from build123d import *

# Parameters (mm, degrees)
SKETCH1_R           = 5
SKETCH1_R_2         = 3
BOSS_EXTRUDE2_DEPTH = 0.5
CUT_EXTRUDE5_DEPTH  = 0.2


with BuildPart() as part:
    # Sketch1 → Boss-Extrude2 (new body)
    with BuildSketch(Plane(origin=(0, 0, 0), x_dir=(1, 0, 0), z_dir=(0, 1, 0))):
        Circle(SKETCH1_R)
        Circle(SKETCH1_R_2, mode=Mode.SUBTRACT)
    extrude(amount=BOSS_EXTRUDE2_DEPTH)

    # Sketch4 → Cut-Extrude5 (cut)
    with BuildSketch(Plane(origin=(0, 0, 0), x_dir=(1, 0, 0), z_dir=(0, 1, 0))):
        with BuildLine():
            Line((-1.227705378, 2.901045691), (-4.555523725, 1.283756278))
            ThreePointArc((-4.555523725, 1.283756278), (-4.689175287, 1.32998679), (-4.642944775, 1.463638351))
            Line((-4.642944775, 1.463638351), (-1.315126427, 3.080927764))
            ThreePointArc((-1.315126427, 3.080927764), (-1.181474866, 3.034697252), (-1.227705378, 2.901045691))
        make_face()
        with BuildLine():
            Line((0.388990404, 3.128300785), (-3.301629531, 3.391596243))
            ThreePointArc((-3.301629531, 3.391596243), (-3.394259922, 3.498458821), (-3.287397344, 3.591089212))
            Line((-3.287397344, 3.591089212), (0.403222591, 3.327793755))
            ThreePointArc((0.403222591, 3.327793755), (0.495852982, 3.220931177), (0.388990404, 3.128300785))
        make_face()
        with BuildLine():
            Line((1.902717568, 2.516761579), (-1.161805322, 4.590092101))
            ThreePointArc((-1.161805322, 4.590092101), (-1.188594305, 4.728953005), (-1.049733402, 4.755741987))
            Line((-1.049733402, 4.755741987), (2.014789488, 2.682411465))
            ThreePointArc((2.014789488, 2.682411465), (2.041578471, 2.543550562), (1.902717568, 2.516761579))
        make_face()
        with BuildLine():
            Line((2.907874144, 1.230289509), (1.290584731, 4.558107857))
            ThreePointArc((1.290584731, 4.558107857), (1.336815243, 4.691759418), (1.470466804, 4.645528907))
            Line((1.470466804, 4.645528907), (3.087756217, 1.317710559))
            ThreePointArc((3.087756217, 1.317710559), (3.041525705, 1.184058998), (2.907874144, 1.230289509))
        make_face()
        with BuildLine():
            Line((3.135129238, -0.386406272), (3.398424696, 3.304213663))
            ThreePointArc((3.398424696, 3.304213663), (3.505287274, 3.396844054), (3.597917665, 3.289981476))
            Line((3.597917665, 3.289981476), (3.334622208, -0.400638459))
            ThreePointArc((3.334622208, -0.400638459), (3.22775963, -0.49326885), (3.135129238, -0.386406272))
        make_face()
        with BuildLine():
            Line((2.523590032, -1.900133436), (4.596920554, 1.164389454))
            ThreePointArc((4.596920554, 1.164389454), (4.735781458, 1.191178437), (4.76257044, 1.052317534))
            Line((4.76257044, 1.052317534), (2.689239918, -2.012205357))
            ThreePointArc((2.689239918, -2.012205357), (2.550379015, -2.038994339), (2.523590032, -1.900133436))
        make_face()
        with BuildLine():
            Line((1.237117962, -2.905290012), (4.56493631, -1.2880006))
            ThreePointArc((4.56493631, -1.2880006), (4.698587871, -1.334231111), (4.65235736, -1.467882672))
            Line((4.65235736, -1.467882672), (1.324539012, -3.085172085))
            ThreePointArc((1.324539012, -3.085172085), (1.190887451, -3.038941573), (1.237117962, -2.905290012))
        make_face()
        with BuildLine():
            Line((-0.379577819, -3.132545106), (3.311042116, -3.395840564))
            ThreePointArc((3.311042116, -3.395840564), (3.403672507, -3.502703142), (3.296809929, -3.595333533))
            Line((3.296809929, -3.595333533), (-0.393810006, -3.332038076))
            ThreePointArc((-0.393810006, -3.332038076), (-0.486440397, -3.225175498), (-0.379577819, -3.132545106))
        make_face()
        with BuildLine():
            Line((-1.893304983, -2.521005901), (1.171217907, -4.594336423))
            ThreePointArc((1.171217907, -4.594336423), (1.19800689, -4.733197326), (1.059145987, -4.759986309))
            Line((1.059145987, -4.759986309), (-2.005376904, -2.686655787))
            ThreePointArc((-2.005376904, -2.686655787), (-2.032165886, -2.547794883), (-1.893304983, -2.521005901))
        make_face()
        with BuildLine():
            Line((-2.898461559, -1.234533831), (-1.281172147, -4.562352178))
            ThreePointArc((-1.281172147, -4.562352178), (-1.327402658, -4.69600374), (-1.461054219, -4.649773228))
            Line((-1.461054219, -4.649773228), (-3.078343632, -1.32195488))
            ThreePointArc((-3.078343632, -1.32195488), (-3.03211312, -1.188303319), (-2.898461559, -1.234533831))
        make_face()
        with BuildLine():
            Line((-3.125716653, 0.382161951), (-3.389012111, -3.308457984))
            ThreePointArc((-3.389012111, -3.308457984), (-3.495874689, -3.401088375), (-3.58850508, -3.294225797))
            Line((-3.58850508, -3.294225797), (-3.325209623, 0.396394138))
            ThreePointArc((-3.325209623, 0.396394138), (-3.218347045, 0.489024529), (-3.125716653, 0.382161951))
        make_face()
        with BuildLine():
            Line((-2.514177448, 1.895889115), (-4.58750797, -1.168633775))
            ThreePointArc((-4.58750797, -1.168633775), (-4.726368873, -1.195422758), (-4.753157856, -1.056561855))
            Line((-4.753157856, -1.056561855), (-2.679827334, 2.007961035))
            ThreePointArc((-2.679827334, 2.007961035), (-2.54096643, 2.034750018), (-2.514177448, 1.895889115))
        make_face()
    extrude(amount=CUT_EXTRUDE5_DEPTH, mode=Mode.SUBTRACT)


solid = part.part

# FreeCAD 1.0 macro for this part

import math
import FreeCAD as App
import Part
import Sketcher

doc = App.newDocument("Part")
body = doc.addObject("PartDesign::Body", "Body")

# Sketch on XZ plane
sketch1 = body.newObject("Sketcher::SketchObject", "Sketch")
sketch1.AttachmentSupport = (doc.getObject("XZ_Plane"), [""])
sketch1.MapMode = "FlatFace"
sketch1.addGeometry([
    Part.Circle(App.Vector(0, 0, 0), App.Vector(0, 0, 1), 5),
    Part.Circle(App.Vector(0, 0, 0), App.Vector(0, 0, 1), 3),
], False)
sketch1.addConstraint([
    Sketcher.Constraint("Coincident", 0, 3, -1, 1),
    Sketcher.Constraint("Coincident", 1, 3, -1, 1),
    Sketcher.Constraint("Diameter", 0, 10.0),
    Sketcher.Constraint("Diameter", 1, 6.0),
])
pad1 = body.newObject("PartDesign::Pad", "Pad")
pad1.Profile = sketch1
pad1.Length = 0.5
pad1.Reversed = True

# Sketch on XZ plane
sketch2 = body.newObject("Sketcher::SketchObject", "Sketch001")
sketch2.AttachmentSupport = (doc.getObject("XZ_Plane"), [""])
sketch2.MapMode = "FlatFace"
sketch2.addGeometry([
    Part.LineSegment(App.Vector(-4.555524, -1.283756, 0), App.Vector(-1.227705, -2.901046, 0)),  # 0
    Part.ArcOfCircle(Part.Circle(App.Vector(-1.271416, -2.990987, 0), App.Vector(0, 0, 1), 0.1), math.radians(-115.91933), math.radians(64.08067)),  # 1
    Part.LineSegment(App.Vector(-1.315126, -3.080928, 0), App.Vector(-4.642945, -1.463638, 0)),  # 2
    Part.ArcOfCircle(Part.Circle(App.Vector(-4.599234, -1.373697, 0), App.Vector(0, 0, 1), 0.1), math.radians(64.08067), math.radians(244.08067)),  # 3
    Part.LineSegment(App.Vector(-3.30163, -3.391596, 0), App.Vector(0.38899, -3.128301, 0)),  # 4
    Part.ArcOfCircle(Part.Circle(App.Vector(0.396106, -3.228047, 0), App.Vector(0, 0, 1), 0.1), math.radians(-85.91933), math.radians(94.08067)),  # 5
    Part.LineSegment(App.Vector(0.403223, -3.327794, 0), App.Vector(-3.287397, -3.591089, 0)),  # 6
    Part.ArcOfCircle(Part.Circle(App.Vector(-3.294513, -3.491343, 0), App.Vector(0, 0, 1), 0.1), math.radians(94.08067), math.radians(274.08067)),  # 7
    Part.LineSegment(App.Vector(-1.161805, -4.590092, 0), App.Vector(1.902718, -2.516762, 0)),  # 8
    Part.ArcOfCircle(Part.Circle(App.Vector(1.958754, -2.599587, 0), App.Vector(0, 0, 1), 0.1), math.radians(-55.91933), math.radians(124.08067)),  # 9
    Part.LineSegment(App.Vector(2.014789, -2.682411, 0), App.Vector(-1.049733, -4.755742, 0)),  # 10
    Part.ArcOfCircle(Part.Circle(App.Vector(-1.105769, -4.672917, 0), App.Vector(0, 0, 1), 0.1), math.radians(124.08067), math.radians(304.08067)),  # 11
    Part.LineSegment(App.Vector(1.290585, -4.558108, 0), App.Vector(2.907874, -1.23029, 0)),  # 12
    Part.ArcOfCircle(Part.Circle(App.Vector(2.997815, -1.274, 0), App.Vector(0, 0, 1), 0.1), math.radians(-25.919329), math.radians(154.080669)),  # 13
    Part.LineSegment(App.Vector(3.087756, -1.317711, 0), App.Vector(1.470467, -4.645529, 0)),  # 14
    Part.ArcOfCircle(Part.Circle(App.Vector(1.380526, -4.601818, 0), App.Vector(0, 0, 1), 0.1), math.radians(154.080671), math.radians(334.080669)),  # 15
    Part.LineSegment(App.Vector(3.398425, -3.304214, 0), App.Vector(3.135129, 0.386406, 0)),  # 16
    Part.ArcOfCircle(Part.Circle(App.Vector(3.234876, 0.393522, 0), App.Vector(0, 0, 1), 0.1), math.radians(4.08067), math.radians(184.08067)),  # 17
    Part.LineSegment(App.Vector(3.334622, 0.400638, 0), App.Vector(3.597918, -3.289981, 0)),  # 18
    Part.ArcOfCircle(Part.Circle(App.Vector(3.498171, -3.297098, 0), App.Vector(0, 0, 1), 0.1), math.radians(-175.919329), math.radians(4.08067)),  # 19
    Part.LineSegment(App.Vector(4.596921, -1.164389, 0), App.Vector(2.52359, 1.900133, 0)),  # 20
    Part.ArcOfCircle(Part.Circle(App.Vector(2.606415, 1.956169, 0), App.Vector(0, 0, 1), 0.1), math.radians(34.080671), math.radians(214.08067)),  # 21
    Part.LineSegment(App.Vector(2.68924, 2.012205, 0), App.Vector(4.76257, -1.052318, 0)),  # 22
    Part.ArcOfCircle(Part.Circle(App.Vector(4.679745, -1.108353, 0), App.Vector(0, 0, 1), 0.1), math.radians(-145.91933), math.radians(34.08067)),  # 23
    Part.LineSegment(App.Vector(4.564936, 1.288001, 0), App.Vector(1.237118, 2.90529, 0)),  # 24
    Part.ArcOfCircle(Part.Circle(App.Vector(1.280828, 2.995231, 0), App.Vector(0, 0, 1), 0.1), math.radians(64.080671), math.radians(244.080669)),  # 25
    Part.LineSegment(App.Vector(1.324539, 3.085172, 0), App.Vector(4.652357, 1.467883, 0)),  # 26
    Part.ArcOfCircle(Part.Circle(App.Vector(4.608647, 1.377942, 0), App.Vector(0, 0, 1), 0.1), math.radians(-115.91933), math.radians(64.08067)),  # 27
    Part.LineSegment(App.Vector(3.311042, 3.395841, 0), App.Vector(-0.379578, 3.132545, 0)),  # 28
    Part.ArcOfCircle(Part.Circle(App.Vector(-0.386694, 3.232292, 0), App.Vector(0, 0, 1), 0.1), math.radians(94.08067), math.radians(274.08067)),  # 29
    Part.LineSegment(App.Vector(-0.39381, 3.332038, 0), App.Vector(3.29681, 3.595334, 0)),  # 30
    Part.ArcOfCircle(Part.Circle(App.Vector(3.303926, 3.495587, 0), App.Vector(0, 0, 1), 0.1), math.radians(-85.91933), math.radians(94.080671)),  # 31
    Part.LineSegment(App.Vector(1.171218, 4.594336, 0), App.Vector(-1.893305, 2.521006, 0)),  # 32
    Part.ArcOfCircle(Part.Circle(App.Vector(-1.949341, 2.603831, 0), App.Vector(0, 0, 1), 0.1), math.radians(124.080671), math.radians(304.08067)),  # 33
    Part.LineSegment(App.Vector(-2.005377, 2.686656, 0), App.Vector(1.059146, 4.759986, 0)),  # 34
    Part.ArcOfCircle(Part.Circle(App.Vector(1.115182, 4.677161, 0), App.Vector(0, 0, 1), 0.1), math.radians(-55.91933), math.radians(124.08067)),  # 35
    Part.LineSegment(App.Vector(-1.281172, 4.562352, 0), App.Vector(-2.898462, 1.234534, 0)),  # 36
    Part.ArcOfCircle(Part.Circle(App.Vector(-2.988403, 1.278244, 0), App.Vector(0, 0, 1), 0.1), math.radians(154.080671), math.radians(334.08067)),  # 37
    Part.LineSegment(App.Vector(-3.078344, 1.321955, 0), App.Vector(-1.461054, 4.649773, 0)),  # 38
    Part.ArcOfCircle(Part.Circle(App.Vector(-1.371113, 4.606063, 0), App.Vector(0, 0, 1), 0.1), math.radians(-25.919331), math.radians(154.08067)),  # 39
    Part.LineSegment(App.Vector(-3.389012, 3.308458, 0), App.Vector(-3.125717, -0.382162, 0)),  # 40
    Part.ArcOfCircle(Part.Circle(App.Vector(-3.225463, -0.389278, 0), App.Vector(0, 0, 1), 0.1), math.radians(-175.91933), math.radians(4.08067)),  # 41
    Part.LineSegment(App.Vector(-3.32521, -0.396394, 0), App.Vector(-3.588505, 3.294226, 0)),  # 42
    Part.ArcOfCircle(Part.Circle(App.Vector(-3.488759, 3.301342, 0), App.Vector(0, 0, 1), 0.1), math.radians(4.08067), math.radians(184.08067)),  # 43
    Part.LineSegment(App.Vector(-4.587508, 1.168634, 0), App.Vector(-2.514177, -1.895889, 0)),  # 44
    Part.ArcOfCircle(Part.Circle(App.Vector(-2.597002, -1.951925, 0), App.Vector(0, 0, 1), 0.1), math.radians(-145.91933), math.radians(34.08067)),  # 45
    Part.LineSegment(App.Vector(-2.679827, -2.007961, 0), App.Vector(-4.753158, 1.056562, 0)),  # 46
    Part.ArcOfCircle(Part.Circle(App.Vector(-4.670333, 1.112598, 0), App.Vector(0, 0, 1), 0.1), math.radians(34.08067), math.radians(214.08067)),  # 47
], False)
sketch2.addConstraint([
    Sketcher.Constraint("Tangent", 0, 2, 1, 2),
    Sketcher.Constraint("Tangent", 1, 1, 2, 1),
    Sketcher.Constraint("Tangent", 2, 2, 3, 2),
    Sketcher.Constraint("Tangent", 3, 1, 0, 1),
    Sketcher.Constraint("Tangent", 4, 2, 5, 2),
    Sketcher.Constraint("Tangent", 5, 1, 6, 1),
    Sketcher.Constraint("Tangent", 6, 2, 7, 2),
    Sketcher.Constraint("Tangent", 7, 1, 4, 1),
    Sketcher.Constraint("Tangent", 8, 2, 9, 2),
    Sketcher.Constraint("Tangent", 9, 1, 10, 1),
    Sketcher.Constraint("Tangent", 10, 2, 11, 2),
    Sketcher.Constraint("Tangent", 11, 1, 8, 1),
    Sketcher.Constraint("Tangent", 12, 2, 13, 2),
    Sketcher.Constraint("Tangent", 13, 1, 14, 1),
    Sketcher.Constraint("Tangent", 14, 2, 15, 2),
    Sketcher.Constraint("Tangent", 15, 1, 12, 1),
    Sketcher.Constraint("Tangent", 16, 2, 17, 2),
    Sketcher.Constraint("Tangent", 17, 1, 18, 1),
    Sketcher.Constraint("Tangent", 18, 2, 19, 2),
    Sketcher.Constraint("Tangent", 19, 1, 16, 1),
    Sketcher.Constraint("Tangent", 20, 2, 21, 2),
    Sketcher.Constraint("Tangent", 21, 1, 22, 1),
    Sketcher.Constraint("Tangent", 22, 2, 23, 2),
    Sketcher.Constraint("Tangent", 23, 1, 20, 1),
    Sketcher.Constraint("Tangent", 24, 2, 25, 2),
    Sketcher.Constraint("Tangent", 25, 1, 26, 1),
    Sketcher.Constraint("Tangent", 26, 2, 27, 2),
    Sketcher.Constraint("Tangent", 27, 1, 24, 1),
    Sketcher.Constraint("Tangent", 28, 2, 29, 2),
    Sketcher.Constraint("Tangent", 29, 1, 30, 1),
    Sketcher.Constraint("Tangent", 30, 2, 31, 2),
    Sketcher.Constraint("Tangent", 31, 1, 28, 1),
    Sketcher.Constraint("Tangent", 32, 2, 33, 2),
    Sketcher.Constraint("Tangent", 33, 1, 34, 1),
    Sketcher.Constraint("Tangent", 34, 2, 35, 2),
    Sketcher.Constraint("Tangent", 35, 1, 32, 1),
    Sketcher.Constraint("Tangent", 36, 2, 37, 2),
    Sketcher.Constraint("Tangent", 37, 1, 38, 1),
    Sketcher.Constraint("Tangent", 38, 2, 39, 2),
    Sketcher.Constraint("Tangent", 39, 1, 36, 1),
    Sketcher.Constraint("Tangent", 40, 2, 41, 2),
    Sketcher.Constraint("Tangent", 41, 1, 42, 1),
    Sketcher.Constraint("Tangent", 42, 2, 43, 2),
    Sketcher.Constraint("Tangent", 43, 1, 40, 1),
    Sketcher.Constraint("Tangent", 44, 2, 45, 2),
    Sketcher.Constraint("Tangent", 45, 1, 46, 1),
    Sketcher.Constraint("Tangent", 46, 2, 47, 2),
    Sketcher.Constraint("Tangent", 47, 1, 44, 1),
    Sketcher.Constraint("Equal", 1, 3),
    Sketcher.Constraint("Equal", 3, 5),
    Sketcher.Constraint("Equal", 5, 7),
    Sketcher.Constraint("Equal", 7, 9),
    Sketcher.Constraint("Equal", 9, 11),
    Sketcher.Constraint("Equal", 11, 13),
    Sketcher.Constraint("Equal", 13, 15),
    Sketcher.Constraint("Equal", 15, 17),
    Sketcher.Constraint("Equal", 17, 19),
    Sketcher.Constraint("Equal", 19, 21),
    Sketcher.Constraint("Equal", 21, 23),
    Sketcher.Constraint("Equal", 23, 25),
    Sketcher.Constraint("Equal", 25, 27),
    Sketcher.Constraint("Equal", 27, 29),
    Sketcher.Constraint("Equal", 29, 31),
    Sketcher.Constraint("Equal", 31, 33),
    Sketcher.Constraint("Equal", 33, 35),
    Sketcher.Constraint("Equal", 35, 37),
    Sketcher.Constraint("Equal", 37, 39),
    Sketcher.Constraint("Equal", 39, 41),
    Sketcher.Constraint("Equal", 41, 43),
    Sketcher.Constraint("Equal", 43, 45),
    Sketcher.Constraint("Equal", 45, 47),
    Sketcher.Constraint("Perpendicular", 2, 12),
    Sketcher.Constraint("Perpendicular", 6, 16),
    Sketcher.Constraint("Perpendicular", 10, 20),
    Sketcher.Constraint("Perpendicular", 14, 24),
    Sketcher.Constraint("Perpendicular", 18, 28),
    Sketcher.Constraint("Perpendicular", 22, 32),
    Sketcher.Constraint("Perpendicular", 26, 36),
    Sketcher.Constraint("Perpendicular", 30, 40),
    Sketcher.Constraint("Perpendicular", 34, 44),
    Sketcher.Constraint("Equal", 2, 4),
    Sketcher.Constraint("Equal", 6, 8),
    Sketcher.Constraint("Equal", 10, 12),
    Sketcher.Constraint("Equal", 14, 16),
    Sketcher.Constraint("Equal", 18, 20),
    Sketcher.Constraint("Equal", 22, 24),
    Sketcher.Constraint("Equal", 26, 28),
    Sketcher.Constraint("Equal", 30, 32),
    Sketcher.Constraint("Equal", 34, 36),
    Sketcher.Constraint("Equal", 38, 40),
    Sketcher.Constraint("Equal", 42, 44),
    Sketcher.Constraint("Radius", 1, 0.1),
    Sketcher.Constraint("Distance", 0, 3.7),
    Sketcher.Constraint("DistanceY", 13, 3, -1, 1, 1.274),
    Sketcher.Constraint("DistanceY", -1, 1, 27, 1, 1.288001),
    Sketcher.Constraint("DistanceY", 4, 2, -1, 1, 3.128301),
    Sketcher.Constraint("DistanceX", 11, 3, -1, 1, 1.105769),
    Sketcher.Constraint("DistanceY", 15, 3, -1, 1, 4.601818),
    Sketcher.Constraint("DistanceX", -1, 1, 19, 3, 3.498171),
    Sketcher.Constraint("DistanceY", -1, 1, 21, 3, 1.956169),
    Sketcher.Constraint("DistanceX", -1, 1, 25, 3, 1.280828),
    Sketcher.Constraint("DistanceY", -1, 1, 29, 3, 3.232292),
    Sketcher.Constraint("DistanceX", 33, 3, -1, 1, 1.949341),
    Sketcher.Constraint("DistanceY", -1, 1, 33, 3, 2.603831),
    Sketcher.Constraint("DistanceX", -1, 1, 35, 3, 1.115182),
    Sketcher.Constraint("DistanceY", 41, 3, -1, 1, 0.389278),
    Sketcher.Constraint("DistanceX", 43, 3, -1, 1, 3.488759),
    Sketcher.Constraint("DistanceY", -1, 1, 43, 3, 3.301342),
    Sketcher.Constraint("DistanceY", 2, 2, -1, 1, 1.463638),
    Sketcher.Constraint("DistanceX", -1, 1, 4, 2, 0.38899),
    Sketcher.Constraint("DistanceY", 8, 2, -1, 1, 2.516762),
    Sketcher.Constraint("DistanceY", -1, 1, 17, 1, 0.400638),
    Sketcher.Constraint("DistanceX", -1, 1, 20, 2, 2.52359),
    Sketcher.Constraint("DistanceX", 29, 1, -1, 1, 0.39381),
    Sketcher.Constraint("DistanceX", 36, 2, -1, 1, 2.898462),
    Sketcher.Constraint("DistanceY", 44, 2, -1, 1, 1.895889),
    Sketcher.Constraint("DistanceX", 1, 3, -1, 1, 1.271416),
    Sketcher.Constraint("DistanceX", -1, 1, 13, 3, 2.997815),
    Sketcher.Constraint("DistanceY", -1, 1, 37, 3, 1.278244),
    Sketcher.Constraint("DistanceX", 45, 3, -1, 1, 2.597002),
])
pocket1 = body.newObject("PartDesign::Pocket", "Pocket")
pocket1.Profile = sketch2
pocket1.Length = 0.2

doc.recompute()
